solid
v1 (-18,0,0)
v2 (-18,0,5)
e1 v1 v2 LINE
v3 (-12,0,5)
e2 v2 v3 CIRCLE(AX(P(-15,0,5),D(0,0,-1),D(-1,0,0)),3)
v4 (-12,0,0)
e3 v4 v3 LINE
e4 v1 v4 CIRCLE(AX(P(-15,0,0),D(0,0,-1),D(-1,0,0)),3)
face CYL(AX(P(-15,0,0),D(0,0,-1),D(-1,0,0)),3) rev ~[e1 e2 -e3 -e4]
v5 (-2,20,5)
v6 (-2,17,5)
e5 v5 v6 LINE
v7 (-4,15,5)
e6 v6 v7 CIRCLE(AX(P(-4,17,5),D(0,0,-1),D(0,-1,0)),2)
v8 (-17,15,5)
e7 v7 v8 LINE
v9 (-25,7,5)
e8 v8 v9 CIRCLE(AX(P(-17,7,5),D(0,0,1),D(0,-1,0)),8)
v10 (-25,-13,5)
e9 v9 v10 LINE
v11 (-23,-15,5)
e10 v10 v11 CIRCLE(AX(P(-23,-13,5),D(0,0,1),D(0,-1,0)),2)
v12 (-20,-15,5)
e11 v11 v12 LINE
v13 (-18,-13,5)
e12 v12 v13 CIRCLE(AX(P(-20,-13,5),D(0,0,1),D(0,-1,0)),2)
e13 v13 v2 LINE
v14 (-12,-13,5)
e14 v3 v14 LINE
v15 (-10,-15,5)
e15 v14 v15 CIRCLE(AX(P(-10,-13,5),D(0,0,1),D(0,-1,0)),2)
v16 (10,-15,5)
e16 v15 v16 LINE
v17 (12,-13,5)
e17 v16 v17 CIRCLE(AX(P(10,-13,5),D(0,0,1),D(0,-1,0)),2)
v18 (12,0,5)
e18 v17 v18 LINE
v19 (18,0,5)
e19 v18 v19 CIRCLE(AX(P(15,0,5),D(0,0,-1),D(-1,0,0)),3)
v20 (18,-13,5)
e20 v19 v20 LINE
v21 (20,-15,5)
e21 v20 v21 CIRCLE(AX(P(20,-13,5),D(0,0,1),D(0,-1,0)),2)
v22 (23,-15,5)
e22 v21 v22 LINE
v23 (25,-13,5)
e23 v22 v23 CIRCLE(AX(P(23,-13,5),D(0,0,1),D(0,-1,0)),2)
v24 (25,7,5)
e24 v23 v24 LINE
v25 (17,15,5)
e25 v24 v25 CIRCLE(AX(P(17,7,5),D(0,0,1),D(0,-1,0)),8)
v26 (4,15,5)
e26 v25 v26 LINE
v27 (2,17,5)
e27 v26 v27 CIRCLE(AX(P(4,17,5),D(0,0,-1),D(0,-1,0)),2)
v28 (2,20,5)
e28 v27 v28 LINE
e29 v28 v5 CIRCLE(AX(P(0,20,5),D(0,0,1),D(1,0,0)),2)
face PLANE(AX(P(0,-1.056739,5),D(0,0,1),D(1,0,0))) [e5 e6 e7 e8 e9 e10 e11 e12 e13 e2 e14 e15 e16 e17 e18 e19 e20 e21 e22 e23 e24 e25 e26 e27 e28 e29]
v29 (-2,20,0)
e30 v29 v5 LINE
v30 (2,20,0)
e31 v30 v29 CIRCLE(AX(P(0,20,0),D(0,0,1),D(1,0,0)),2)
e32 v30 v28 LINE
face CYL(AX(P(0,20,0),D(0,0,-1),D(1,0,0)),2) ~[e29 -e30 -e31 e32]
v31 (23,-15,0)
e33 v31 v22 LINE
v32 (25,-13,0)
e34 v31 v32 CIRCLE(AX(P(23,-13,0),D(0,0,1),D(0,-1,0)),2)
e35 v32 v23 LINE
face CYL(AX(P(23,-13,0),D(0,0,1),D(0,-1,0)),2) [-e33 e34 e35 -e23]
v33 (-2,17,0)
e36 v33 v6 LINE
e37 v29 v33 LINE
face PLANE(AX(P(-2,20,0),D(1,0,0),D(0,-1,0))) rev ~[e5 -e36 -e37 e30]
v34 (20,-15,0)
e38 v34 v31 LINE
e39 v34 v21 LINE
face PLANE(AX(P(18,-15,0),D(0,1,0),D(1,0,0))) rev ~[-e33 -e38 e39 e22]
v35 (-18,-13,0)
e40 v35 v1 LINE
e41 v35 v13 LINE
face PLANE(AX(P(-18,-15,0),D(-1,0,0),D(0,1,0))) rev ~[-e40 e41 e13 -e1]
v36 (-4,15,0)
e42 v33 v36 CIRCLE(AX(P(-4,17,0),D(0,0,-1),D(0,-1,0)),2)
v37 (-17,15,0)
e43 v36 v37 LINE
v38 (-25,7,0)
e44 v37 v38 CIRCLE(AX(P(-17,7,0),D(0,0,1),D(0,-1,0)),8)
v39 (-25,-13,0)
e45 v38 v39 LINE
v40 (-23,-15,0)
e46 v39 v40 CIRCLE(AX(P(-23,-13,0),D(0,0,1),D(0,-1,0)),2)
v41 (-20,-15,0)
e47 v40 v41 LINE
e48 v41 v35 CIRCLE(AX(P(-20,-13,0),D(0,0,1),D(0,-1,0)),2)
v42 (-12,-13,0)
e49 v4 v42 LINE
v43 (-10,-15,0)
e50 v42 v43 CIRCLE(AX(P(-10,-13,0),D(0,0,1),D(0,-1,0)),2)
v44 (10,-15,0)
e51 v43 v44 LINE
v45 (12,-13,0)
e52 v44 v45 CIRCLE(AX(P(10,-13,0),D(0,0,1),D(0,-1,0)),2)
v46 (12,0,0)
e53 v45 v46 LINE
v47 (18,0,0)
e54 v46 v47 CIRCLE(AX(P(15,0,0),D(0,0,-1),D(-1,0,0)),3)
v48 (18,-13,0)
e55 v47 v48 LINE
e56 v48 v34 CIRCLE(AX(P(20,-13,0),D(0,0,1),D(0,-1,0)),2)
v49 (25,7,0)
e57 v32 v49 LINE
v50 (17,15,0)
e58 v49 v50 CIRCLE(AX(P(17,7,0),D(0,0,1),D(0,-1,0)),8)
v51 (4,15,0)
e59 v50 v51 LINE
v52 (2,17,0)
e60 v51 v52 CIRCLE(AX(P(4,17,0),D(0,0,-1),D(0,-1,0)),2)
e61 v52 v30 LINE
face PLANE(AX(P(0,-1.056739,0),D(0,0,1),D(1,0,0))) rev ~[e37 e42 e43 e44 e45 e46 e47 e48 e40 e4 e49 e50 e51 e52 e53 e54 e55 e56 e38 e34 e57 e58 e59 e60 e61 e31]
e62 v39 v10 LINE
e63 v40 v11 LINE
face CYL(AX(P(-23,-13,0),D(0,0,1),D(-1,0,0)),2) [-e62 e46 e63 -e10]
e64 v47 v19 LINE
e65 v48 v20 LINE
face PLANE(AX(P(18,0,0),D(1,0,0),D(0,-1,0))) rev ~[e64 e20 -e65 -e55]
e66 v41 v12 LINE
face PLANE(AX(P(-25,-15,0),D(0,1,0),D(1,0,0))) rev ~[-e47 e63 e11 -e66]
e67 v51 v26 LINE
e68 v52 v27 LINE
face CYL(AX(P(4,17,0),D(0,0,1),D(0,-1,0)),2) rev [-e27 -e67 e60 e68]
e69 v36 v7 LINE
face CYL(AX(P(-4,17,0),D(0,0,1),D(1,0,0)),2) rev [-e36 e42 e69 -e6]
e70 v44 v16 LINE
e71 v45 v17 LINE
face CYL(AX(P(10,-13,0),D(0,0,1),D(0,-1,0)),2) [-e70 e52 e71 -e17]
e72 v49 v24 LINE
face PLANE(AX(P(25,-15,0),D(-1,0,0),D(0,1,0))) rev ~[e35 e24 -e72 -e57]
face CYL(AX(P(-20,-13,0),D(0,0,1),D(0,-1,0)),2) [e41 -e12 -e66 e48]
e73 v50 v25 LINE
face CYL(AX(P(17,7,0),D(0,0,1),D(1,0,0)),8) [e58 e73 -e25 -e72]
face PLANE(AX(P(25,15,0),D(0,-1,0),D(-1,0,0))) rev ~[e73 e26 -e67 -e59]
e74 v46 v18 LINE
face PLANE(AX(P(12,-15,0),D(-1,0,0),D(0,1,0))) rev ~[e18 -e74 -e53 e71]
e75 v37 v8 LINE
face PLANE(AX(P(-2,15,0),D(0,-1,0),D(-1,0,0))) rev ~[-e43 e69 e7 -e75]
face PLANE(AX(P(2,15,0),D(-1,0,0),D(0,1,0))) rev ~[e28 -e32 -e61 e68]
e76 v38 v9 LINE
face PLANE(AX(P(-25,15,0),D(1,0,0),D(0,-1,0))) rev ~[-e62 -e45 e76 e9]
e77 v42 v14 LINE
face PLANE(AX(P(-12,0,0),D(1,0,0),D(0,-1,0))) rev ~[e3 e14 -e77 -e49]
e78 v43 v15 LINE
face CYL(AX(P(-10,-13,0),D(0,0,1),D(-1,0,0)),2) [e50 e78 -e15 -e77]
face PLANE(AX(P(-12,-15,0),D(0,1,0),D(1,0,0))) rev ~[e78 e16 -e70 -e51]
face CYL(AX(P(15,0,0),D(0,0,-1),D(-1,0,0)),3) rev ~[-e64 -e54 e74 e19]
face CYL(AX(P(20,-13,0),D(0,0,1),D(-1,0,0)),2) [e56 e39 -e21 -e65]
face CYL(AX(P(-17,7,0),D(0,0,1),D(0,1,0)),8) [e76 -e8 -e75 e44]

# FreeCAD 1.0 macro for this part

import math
import FreeCAD as App
import Part
import Sketcher
from FreeCAD import Vector


def edges_at(feature, points):
    """Names of the edges that pass closest to the given points."""
    edges = feature.Shape.Edges
    near = lambda p: min(range(len(edges)), key=lambda i: edges[i].distToShape(Part.Vertex(*p))[0])
    return sorted({f"Edge{near(p) + 1}" for p in points})

doc = App.newDocument("Part")
body = doc.addObject("PartDesign::Body", "Body")

# Sketch on XY plane
sketch1 = doc.addObject("Sketcher::SketchObject", "Sketch")
body.addObject(sketch1)
sketch1.AttachmentSupport = (doc.XY_Plane, [""])
sketch1.MapMode = "FlatFace"
sketch1.addGeometry(Part.ArcOfCircle(Part.Circle(Vector(15, 0, 0), Vector(0, 0, 1), 3), math.radians(0), math.radians(180)), False)
sketch1.addGeometry(Part.LineSegment(Vector(18, 0, 0), Vector(18, -15, 0)), False)
sketch1.addGeometry(Part.LineSegment(Vector(18, -15, 0), Vector(25, -15, 0)), False)
sketch1.addGeometry(Part.LineSegment(Vector(25, -15, 0), Vector(25, 15, 0)), False)
sketch1.addGeometry(Part.LineSegment(Vector(25, 15, 0), Vector(2, 15, 0)), False)
sketch1.addGeometry(Part.LineSegment(Vector(2, 15, 0), Vector(2, 20, 0)), False)
sketch1.addGeometry(Part.ArcOfCircle(Part.Circle(Vector(0, 20, 0), Vector(0, 0, 1), 2), math.radians(0), math.radians(180)), False)
sketch1.addGeometry(Part.LineSegment(Vector(-2, 20, 0), Vector(-2, 15, 0)), False)
sketch1.addGeometry(Part.LineSegment(Vector(-2, 15, 0), Vector(-25, 15, 0)), False)
sketch1.addGeometry(Part.LineSegment(Vector(-25, 15, 0), Vector(-25, -15, 0)), False)
sketch1.addGeometry(Part.LineSegment(Vector(-25, -15, 0), Vector(-18, -15, 0)), False)
sketch1.addGeometry(Part.LineSegment(Vector(-18, -15, 0), Vector(-18, 0, 0)), False)
sketch1.addGeometry(Part.ArcOfCircle(Part.Circle(Vector(-15, 0, 0), Vector(0, 0, 1), 3), math.radians(0), math.radians(180)), False)
sketch1.addGeometry(Part.LineSegment(Vector(-12, 0, 0), Vector(-12, -15, 0)), False)
sketch1.addGeometry(Part.LineSegment(Vector(-12, -15, 0), Vector(12, -15, 0)), False)
sketch1.addGeometry(Part.LineSegment(Vector(12, -15, 0), Vector(12, 0, 0)), False)
sketch1.addConstraint(Sketcher.Constraint("Tangent", 0, 1, 1, 1))
sketch1.addConstraint(Sketcher.Constraint("Coincident", 1, 2, 2, 1))
sketch1.addConstraint(Sketcher.Constraint("Coincident", 2, 2, 3, 1))
sketch1.addConstraint(Sketcher.Constraint("Coincident", 3, 2, 4, 1))
sketch1.addConstraint(Sketcher.Constraint("Coincident", 4, 2, 5, 1))
sketch1.addConstraint(Sketcher.Constraint("Tangent", 5, 2, 6, 1))
sketch1.addConstraint(Sketcher.Constraint("Tangent", 6, 2, 7, 1))
sketch1.addConstraint(Sketcher.Constraint("Coincident", 7, 2, 8, 1))
sketch1.addConstraint(Sketcher.Constraint("Coincident", 8, 2, 9, 1))
sketch1.addConstraint(Sketcher.Constraint("Coincident", 9, 2, 10, 1))
sketch1.addConstraint(Sketcher.Constraint("Coincident", 10, 2, 11, 1))
sketch1.addConstraint(Sketcher.Constraint("Tangent", 11, 2, 12, 2))
sketch1.addConstraint(Sketcher.Constraint("Tangent", 12, 1, 13, 1))
sketch1.addConstraint(Sketcher.Constraint("Coincident", 13, 2, 14, 1))
sketch1.addConstraint(Sketcher.Constraint("Coincident", 14, 2, 15, 1))
sketch1.addConstraint(Sketcher.Constraint("Tangent", 15, 2, 0, 2))
sketch1.addConstraint(Sketcher.Constraint("Vertical", 1))
sketch1.addConstraint(Sketcher.Constraint("Horizontal", 2))
sketch1.addConstraint(Sketcher.Constraint("Vertical", 3))
sketch1.addConstraint(Sketcher.Constraint("Horizontal", 4))
sketch1.addConstraint(Sketcher.Constraint("Vertical", 5))
sketch1.addConstraint(Sketcher.Constraint("Vertical", 7))
sketch1.addConstraint(Sketcher.Constraint("Horizontal", 8))
sketch1.addConstraint(Sketcher.Constraint("Vertical", 9))
sketch1.addConstraint(Sketcher.Constraint("Horizontal", 10))
sketch1.addConstraint(Sketcher.Constraint("Vertical", 11))
sketch1.addConstraint(Sketcher.Constraint("Vertical", 13))
sketch1.addConstraint(Sketcher.Constraint("Horizontal", 14))
sketch1.addConstraint(Sketcher.Constraint("Vertical", 15))
sketch1.addConstraint(Sketcher.Constraint("Equal", 0, 12))
sketch1.addConstraint(Sketcher.Constraint("Symmetric", 0, 3, 12, 3, -1, 1))
sketch1.addConstraint(Sketcher.Constraint("Symmetric", 2, 2, 8, 2, -1, 1))
sketch1.addConstraint(Sketcher.Constraint("Symmetric", 4, 2, 7, 2, -2))
sketch1.addConstraint(Sketcher.Constraint("PointOnObject", 0, 3, -1))
sketch1.addConstraint(Sketcher.Constraint("Horizontal", 2, 2, 9, 2))
sketch1.addConstraint(Sketcher.Constraint("Horizontal", 10, 2, 13, 2))
sketch1.addConstraint(Sketcher.Constraint("Radius", 0, 3.0))
sketch1.addConstraint(Sketcher.Constraint("Radius", 6, 2.0))
sketch1.addConstraint(Sketcher.Constraint("DistanceX", 2, 1, 2, 2, 7.0))
sketch1.addConstraint(Sketcher.Constraint("DistanceX", 4, 2, 4, 1, 23.0))
sketch1.addConstraint(Sketcher.Constraint("DistanceY", 1, 2, 1, 1, 15.0))
sketch1.addConstraint(Sketcher.Constraint("DistanceY", 5, 1, 5, 2, 5.0))
pad1 = doc.addObject("PartDesign::Pad", "Pad")
body.addObject(pad1)
pad1.Profile = sketch1
pad1.Length = 5
doc.recompute()

fillet = doc.addObject("PartDesign::Fillet", "Fillet")
body.addObject(fillet)
fillet.Base = (pad1, edges_at(pad1, [
    (12, -15, 2.5),
    (-12, -15, 2.5),
    (-18, -15, 2.5),
    (-25, -15, 2.5),
    (-2, 15, 2.5),
    (2, 15, 2.5),
    (25, -15, 2.5),
    (18, -15, 2.5),
]))
fillet.Radius = 2
doc.recompute()

fillet2 = doc.addObject("PartDesign::Fillet", "Fillet001")
body.addObject(fillet2)
fillet2.Base = (fillet, edges_at(fillet, [(-25, 15, 2.5), (25, 15, 2.5)]))
fillet2.Radius = 8

doc.recompute()
